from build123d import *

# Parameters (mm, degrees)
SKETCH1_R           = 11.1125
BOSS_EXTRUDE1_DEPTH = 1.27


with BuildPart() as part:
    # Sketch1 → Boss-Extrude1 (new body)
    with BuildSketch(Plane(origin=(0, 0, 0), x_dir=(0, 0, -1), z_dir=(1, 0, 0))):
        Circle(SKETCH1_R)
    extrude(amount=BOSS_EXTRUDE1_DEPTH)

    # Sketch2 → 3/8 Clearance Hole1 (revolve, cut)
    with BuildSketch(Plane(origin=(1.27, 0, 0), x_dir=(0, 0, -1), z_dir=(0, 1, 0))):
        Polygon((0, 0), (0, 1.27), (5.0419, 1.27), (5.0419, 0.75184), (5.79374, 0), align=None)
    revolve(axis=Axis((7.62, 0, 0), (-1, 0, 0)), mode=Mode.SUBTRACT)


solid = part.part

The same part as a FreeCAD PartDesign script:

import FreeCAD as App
import Part
import Sketcher

V = App.Vector
Q = App.Units.Quantity

doc = App.newDocument("Part")
body = doc.addObject("PartDesign::Body", "Body")

sketch1 = body.newObject("Sketcher::SketchObject", "Sketch")
sketch1.AttachmentSupport = (doc.getObject("YZ_Plane"), [""])
sketch1.MapMode = "FlatFace"
sketch1.addGeometry(Part.Circle(V(0, 0, 0), V(0, 0, 1), 11.1125), False)
sketch1.addConstraint(Sketcher.Constraint("Coincident", 0, 3, -1, 1))
sketch1.addConstraint(Sketcher.Constraint("Diameter", 0, Q("0.875 in")))
pad1 = body.newObject("PartDesign::Pad", "Pad")
pad1.Profile = sketch1
pad1.Length = Q("0.05 in")

sketch2 = body.newObject("Sketcher::SketchObject", "Sketch001")
sketch2.AttachmentSupport = (doc.getObject("XZ_Plane"), [""])
sketch2.MapMode = "FlatFace"
sketch2.addGeometry(Part.LineSegment(V(0, 0, 0), V(1.27, 0, 0)), False)
sketch2.addGeometry(Part.LineSegment(V(1.27, 0, 0), V(1.27, -5.79374, 0)), False)
sketch2.addGeometry(Part.LineSegment(V(1.27, -5.79374, 0), V(0.51816, -5.0419, 0)), False)
sketch2.addGeometry(Part.LineSegment(V(0.51816, -5.0419, 0), V(0, -5.0419, 0)), False)
sketch2.addGeometry(Part.LineSegment(V(0, -5.0419, 0), V(0, 0, 0)), False)
sketch2.addConstraint(Sketcher.Constraint("Coincident", 0, 2, 1, 1))
sketch2.addConstraint(Sketcher.Constraint("Coincident", 1, 2, 2, 1))
sketch2.addConstraint(Sketcher.Constraint("Coincident", 2, 2, 3, 1))
sketch2.addConstraint(Sketcher.Constraint("Coincident", 3, 2, 4, 1))
sketch2.addConstraint(Sketcher.Constraint("Coincident", 4, 2, 0, 1))
sketch2.addConstraint(Sketcher.Constraint("Horizontal", 0))
sketch2.addConstraint(Sketcher.Constraint("Vertical", 1))
sketch2.addConstraint(Sketcher.Constraint("Horizontal", 3))
sketch2.addConstraint(Sketcher.Constraint("Vertical", 4))
sketch2.addConstraint(Sketcher.Constraint("Coincident", 4, 2, -1, 1))
sketch2.addConstraint(Sketcher.Constraint("Angle", 2, Q("135 deg")))
sketch2.addConstraint(Sketcher.Constraint("DistanceX", 0, 1, 0, 2, Q("0.05 in")))
sketch2.addConstraint(Sketcher.Constraint("DistanceX", 3, 2, 3, 1, Q("0.0204 in")))
sketch2.addConstraint(Sketcher.Constraint("DistanceY", 1, 2, 1, 1, Q("0.2281 in")))
groove = body.newObject("PartDesign::Groove", "Groove")
groove.Profile = sketch2
groove.ReferenceAxis = (sketch2, ["H_Axis"])
groove.Angle = 360

doc.recompute()
